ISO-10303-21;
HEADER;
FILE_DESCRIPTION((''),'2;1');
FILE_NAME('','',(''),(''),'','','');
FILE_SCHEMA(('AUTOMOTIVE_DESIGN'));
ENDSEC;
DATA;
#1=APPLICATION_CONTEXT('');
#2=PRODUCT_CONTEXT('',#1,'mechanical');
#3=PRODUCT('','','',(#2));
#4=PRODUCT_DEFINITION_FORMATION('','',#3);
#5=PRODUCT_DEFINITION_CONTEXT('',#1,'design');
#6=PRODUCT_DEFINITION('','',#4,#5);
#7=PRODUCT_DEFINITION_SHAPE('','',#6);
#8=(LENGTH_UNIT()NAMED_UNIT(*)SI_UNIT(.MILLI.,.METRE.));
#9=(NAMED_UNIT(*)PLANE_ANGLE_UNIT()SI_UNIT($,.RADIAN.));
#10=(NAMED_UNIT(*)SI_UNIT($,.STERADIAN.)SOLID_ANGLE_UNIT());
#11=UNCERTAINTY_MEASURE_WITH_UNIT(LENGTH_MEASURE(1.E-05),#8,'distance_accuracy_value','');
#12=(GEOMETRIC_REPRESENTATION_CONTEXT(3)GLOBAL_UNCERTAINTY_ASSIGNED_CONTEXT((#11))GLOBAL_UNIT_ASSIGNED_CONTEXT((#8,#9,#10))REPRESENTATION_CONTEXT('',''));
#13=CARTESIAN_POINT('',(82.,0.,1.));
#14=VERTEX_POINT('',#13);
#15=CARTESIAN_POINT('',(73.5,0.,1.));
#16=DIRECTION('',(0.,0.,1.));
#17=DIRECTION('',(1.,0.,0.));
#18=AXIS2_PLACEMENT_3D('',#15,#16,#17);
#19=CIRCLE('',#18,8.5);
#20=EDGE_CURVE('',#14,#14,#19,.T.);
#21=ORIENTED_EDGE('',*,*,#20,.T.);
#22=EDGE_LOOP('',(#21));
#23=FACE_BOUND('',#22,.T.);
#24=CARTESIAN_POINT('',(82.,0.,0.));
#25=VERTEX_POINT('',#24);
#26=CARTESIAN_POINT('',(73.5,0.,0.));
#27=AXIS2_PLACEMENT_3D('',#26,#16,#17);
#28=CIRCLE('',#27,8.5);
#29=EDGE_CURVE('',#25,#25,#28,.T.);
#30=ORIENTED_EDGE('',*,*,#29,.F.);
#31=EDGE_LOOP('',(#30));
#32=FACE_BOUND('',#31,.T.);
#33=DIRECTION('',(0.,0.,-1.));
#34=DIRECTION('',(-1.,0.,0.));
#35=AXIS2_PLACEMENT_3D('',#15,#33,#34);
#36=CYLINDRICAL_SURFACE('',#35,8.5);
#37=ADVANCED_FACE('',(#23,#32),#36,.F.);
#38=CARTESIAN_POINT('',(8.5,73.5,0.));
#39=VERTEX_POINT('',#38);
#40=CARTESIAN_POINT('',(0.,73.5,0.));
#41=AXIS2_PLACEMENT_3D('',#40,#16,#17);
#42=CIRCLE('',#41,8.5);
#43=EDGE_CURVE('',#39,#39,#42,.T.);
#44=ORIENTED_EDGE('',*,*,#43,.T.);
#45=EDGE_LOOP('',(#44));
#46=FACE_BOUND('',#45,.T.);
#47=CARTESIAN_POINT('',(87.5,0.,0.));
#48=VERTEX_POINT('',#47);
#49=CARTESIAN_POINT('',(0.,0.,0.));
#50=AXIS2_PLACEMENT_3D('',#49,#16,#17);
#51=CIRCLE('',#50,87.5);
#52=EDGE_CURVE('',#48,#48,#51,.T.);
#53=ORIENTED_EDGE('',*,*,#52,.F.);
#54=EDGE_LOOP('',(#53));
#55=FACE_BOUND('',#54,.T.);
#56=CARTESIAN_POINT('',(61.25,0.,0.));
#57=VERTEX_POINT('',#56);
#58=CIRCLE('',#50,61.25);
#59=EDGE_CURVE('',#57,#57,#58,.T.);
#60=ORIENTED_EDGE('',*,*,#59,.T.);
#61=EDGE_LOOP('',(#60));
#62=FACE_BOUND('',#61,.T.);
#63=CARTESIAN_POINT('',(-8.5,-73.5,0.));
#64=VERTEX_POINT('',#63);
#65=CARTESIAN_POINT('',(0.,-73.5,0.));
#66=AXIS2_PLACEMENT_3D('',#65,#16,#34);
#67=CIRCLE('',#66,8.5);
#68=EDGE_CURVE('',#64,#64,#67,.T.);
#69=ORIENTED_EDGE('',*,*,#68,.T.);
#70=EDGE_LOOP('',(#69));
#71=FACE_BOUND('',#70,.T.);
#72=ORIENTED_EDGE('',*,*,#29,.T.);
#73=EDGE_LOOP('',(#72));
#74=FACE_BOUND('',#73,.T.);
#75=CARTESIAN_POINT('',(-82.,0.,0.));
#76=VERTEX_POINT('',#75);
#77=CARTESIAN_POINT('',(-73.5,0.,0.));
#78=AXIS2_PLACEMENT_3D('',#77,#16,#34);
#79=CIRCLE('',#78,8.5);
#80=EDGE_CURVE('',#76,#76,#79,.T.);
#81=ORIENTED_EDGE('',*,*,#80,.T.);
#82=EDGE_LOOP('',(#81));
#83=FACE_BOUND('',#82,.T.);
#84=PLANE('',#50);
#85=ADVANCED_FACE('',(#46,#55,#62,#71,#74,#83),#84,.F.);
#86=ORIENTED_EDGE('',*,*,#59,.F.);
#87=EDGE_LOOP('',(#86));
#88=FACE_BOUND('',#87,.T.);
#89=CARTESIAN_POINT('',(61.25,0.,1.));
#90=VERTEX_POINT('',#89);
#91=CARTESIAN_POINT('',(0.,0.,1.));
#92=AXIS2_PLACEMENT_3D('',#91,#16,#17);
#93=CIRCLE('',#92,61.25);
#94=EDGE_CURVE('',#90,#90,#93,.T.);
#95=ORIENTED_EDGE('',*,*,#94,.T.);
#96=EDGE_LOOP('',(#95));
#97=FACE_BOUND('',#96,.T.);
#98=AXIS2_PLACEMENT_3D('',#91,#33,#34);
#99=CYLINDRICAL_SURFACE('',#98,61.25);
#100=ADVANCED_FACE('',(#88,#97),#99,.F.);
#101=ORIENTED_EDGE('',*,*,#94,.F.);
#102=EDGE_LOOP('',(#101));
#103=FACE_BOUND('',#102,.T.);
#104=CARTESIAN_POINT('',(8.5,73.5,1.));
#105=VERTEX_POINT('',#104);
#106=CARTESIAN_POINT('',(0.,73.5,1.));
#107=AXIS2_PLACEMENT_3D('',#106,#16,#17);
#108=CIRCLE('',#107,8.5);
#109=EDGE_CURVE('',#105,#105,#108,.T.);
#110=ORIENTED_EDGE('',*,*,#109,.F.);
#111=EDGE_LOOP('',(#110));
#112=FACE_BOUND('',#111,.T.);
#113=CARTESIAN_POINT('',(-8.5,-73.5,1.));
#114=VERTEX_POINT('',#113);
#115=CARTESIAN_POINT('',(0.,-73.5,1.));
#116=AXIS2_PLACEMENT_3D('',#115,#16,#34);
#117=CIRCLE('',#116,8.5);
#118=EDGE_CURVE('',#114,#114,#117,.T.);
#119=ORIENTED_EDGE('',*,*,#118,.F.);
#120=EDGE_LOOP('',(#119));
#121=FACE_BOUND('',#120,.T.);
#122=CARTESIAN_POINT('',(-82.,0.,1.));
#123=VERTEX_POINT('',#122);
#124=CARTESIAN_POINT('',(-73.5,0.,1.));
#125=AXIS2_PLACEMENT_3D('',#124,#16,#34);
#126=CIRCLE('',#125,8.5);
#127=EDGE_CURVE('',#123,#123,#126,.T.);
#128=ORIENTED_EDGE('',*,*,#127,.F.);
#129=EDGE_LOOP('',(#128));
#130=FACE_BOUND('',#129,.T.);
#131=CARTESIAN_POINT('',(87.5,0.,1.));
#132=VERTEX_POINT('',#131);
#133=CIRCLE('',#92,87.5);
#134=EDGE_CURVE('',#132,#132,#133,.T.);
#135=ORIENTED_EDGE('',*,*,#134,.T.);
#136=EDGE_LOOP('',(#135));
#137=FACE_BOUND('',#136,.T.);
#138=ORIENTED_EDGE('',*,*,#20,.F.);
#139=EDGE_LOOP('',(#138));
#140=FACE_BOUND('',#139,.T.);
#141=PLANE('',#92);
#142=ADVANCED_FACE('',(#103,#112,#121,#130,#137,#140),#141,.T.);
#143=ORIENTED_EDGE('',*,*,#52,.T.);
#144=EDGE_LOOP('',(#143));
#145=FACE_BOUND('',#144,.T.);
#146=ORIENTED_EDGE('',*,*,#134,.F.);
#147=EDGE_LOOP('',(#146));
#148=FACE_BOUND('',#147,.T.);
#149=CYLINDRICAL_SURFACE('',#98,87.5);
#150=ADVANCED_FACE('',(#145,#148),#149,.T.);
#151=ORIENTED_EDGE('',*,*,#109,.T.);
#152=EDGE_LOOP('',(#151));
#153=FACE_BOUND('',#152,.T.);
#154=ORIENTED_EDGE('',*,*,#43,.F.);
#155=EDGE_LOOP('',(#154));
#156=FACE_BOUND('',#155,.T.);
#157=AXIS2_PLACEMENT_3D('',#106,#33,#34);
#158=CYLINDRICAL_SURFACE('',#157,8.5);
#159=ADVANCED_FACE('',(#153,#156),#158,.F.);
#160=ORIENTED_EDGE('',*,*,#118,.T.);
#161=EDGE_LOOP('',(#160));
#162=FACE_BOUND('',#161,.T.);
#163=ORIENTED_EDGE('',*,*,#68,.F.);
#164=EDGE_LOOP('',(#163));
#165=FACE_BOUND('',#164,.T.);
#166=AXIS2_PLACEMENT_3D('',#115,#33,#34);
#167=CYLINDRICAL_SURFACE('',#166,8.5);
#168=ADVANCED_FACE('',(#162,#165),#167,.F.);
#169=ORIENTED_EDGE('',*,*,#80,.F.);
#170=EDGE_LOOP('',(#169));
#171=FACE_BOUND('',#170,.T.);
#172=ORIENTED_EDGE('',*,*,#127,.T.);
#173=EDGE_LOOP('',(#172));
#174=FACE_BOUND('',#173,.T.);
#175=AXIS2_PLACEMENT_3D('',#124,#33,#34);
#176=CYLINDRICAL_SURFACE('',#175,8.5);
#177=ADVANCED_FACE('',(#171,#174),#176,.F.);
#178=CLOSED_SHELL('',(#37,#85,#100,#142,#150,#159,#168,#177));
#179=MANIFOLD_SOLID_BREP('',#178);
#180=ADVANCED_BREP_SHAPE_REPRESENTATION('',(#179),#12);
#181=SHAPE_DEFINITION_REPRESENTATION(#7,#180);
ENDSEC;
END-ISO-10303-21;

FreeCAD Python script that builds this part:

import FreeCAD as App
import Part
import Sketcher

V = App.Vector

doc = App.newDocument("Part")
params = doc.addObject("Spreadsheet::Sheet", "Params")
for row, (alias, value) in enumerate([
    ("sketch1_diameter", "175 mm"),
    ("sketch1_diameter2", "17 mm"),
    ("sketch1_diameter3", "122.5 mm"),
    ("pad1_length", "1 mm"),
], start=1):
    params.set(f"A{row}", alias)
    params.set(f"B{row}", "=" + value)
    params.setAlias(f"B{row}", alias)

body = doc.addObject("PartDesign::Body", "Body")

sketch1 = doc.addObject("Sketcher::SketchObject", "Sketch")
body.addObject(sketch1)
sketch1.AttachmentSupport = (doc.XY_Plane, [""])
sketch1.MapMode = "FlatFace"
sketch1.addGeometry([
    Part.Circle(V(0, 0, 0), V(0, 0, 1), 88),
    Part.Circle(V(0, -74, 0), V(0, 0, 1), 8),
    Part.Circle(V(-74, 0, 0), V(0, 0, 1), 8),
    Part.Circle(V(0, 0, 0), V(0, 0, 1), 61),
    Part.Circle(V(74, 0, 0), V(0, 0, 1), 8),
    Part.Circle(V(0, 74, 0), V(0, 0, 1), 8),
], False)
sketch1.addConstraint([
    Sketcher.Constraint("Coincident", 0, 3, -1, 1),
    Sketcher.Constraint("Coincident", 3, 3, -1, 1),
    Sketcher.Constraint("Equal", 1, 2),
    Sketcher.Constraint("Equal", 2, 4),
    Sketcher.Constraint("Equal", 4, 5),
    Sketcher.Constraint("Symmetric", 2, 3, 4, 3, -1, 1),
    Sketcher.Constraint("Symmetric", 1, 3, 5, 3, -1, 1),
    Sketcher.Constraint("PointOnObject", 1, 3, -2),
    Sketcher.Constraint("PointOnObject", 2, 3, -1),
    Sketcher.Constraint("Diameter", 0, 175.0),
    Sketcher.Constraint("Diameter", 1, 17.0),
    Sketcher.Constraint("Diameter", 3, 122.5),
    Sketcher.Constraint("DistanceX", 2, 3, 4, 3, 147.0),
    Sketcher.Constraint("DistanceY", 1, 3, 5, 3, 147.0),
])
sketch1.setExpression("Constraints[9]", "Params.sketch1_diameter")
sketch1.setExpression("Constraints[10]", "Params.sketch1_diameter2")
sketch1.setExpression("Constraints[11]", "Params.sketch1_diameter3")
pad1 = doc.addObject("PartDesign::Pad", "Pad")
body.addObject(pad1)
pad1.Profile = sketch1
pad1.setExpression("Length", "Params.pad1_length")

doc.recompute()
